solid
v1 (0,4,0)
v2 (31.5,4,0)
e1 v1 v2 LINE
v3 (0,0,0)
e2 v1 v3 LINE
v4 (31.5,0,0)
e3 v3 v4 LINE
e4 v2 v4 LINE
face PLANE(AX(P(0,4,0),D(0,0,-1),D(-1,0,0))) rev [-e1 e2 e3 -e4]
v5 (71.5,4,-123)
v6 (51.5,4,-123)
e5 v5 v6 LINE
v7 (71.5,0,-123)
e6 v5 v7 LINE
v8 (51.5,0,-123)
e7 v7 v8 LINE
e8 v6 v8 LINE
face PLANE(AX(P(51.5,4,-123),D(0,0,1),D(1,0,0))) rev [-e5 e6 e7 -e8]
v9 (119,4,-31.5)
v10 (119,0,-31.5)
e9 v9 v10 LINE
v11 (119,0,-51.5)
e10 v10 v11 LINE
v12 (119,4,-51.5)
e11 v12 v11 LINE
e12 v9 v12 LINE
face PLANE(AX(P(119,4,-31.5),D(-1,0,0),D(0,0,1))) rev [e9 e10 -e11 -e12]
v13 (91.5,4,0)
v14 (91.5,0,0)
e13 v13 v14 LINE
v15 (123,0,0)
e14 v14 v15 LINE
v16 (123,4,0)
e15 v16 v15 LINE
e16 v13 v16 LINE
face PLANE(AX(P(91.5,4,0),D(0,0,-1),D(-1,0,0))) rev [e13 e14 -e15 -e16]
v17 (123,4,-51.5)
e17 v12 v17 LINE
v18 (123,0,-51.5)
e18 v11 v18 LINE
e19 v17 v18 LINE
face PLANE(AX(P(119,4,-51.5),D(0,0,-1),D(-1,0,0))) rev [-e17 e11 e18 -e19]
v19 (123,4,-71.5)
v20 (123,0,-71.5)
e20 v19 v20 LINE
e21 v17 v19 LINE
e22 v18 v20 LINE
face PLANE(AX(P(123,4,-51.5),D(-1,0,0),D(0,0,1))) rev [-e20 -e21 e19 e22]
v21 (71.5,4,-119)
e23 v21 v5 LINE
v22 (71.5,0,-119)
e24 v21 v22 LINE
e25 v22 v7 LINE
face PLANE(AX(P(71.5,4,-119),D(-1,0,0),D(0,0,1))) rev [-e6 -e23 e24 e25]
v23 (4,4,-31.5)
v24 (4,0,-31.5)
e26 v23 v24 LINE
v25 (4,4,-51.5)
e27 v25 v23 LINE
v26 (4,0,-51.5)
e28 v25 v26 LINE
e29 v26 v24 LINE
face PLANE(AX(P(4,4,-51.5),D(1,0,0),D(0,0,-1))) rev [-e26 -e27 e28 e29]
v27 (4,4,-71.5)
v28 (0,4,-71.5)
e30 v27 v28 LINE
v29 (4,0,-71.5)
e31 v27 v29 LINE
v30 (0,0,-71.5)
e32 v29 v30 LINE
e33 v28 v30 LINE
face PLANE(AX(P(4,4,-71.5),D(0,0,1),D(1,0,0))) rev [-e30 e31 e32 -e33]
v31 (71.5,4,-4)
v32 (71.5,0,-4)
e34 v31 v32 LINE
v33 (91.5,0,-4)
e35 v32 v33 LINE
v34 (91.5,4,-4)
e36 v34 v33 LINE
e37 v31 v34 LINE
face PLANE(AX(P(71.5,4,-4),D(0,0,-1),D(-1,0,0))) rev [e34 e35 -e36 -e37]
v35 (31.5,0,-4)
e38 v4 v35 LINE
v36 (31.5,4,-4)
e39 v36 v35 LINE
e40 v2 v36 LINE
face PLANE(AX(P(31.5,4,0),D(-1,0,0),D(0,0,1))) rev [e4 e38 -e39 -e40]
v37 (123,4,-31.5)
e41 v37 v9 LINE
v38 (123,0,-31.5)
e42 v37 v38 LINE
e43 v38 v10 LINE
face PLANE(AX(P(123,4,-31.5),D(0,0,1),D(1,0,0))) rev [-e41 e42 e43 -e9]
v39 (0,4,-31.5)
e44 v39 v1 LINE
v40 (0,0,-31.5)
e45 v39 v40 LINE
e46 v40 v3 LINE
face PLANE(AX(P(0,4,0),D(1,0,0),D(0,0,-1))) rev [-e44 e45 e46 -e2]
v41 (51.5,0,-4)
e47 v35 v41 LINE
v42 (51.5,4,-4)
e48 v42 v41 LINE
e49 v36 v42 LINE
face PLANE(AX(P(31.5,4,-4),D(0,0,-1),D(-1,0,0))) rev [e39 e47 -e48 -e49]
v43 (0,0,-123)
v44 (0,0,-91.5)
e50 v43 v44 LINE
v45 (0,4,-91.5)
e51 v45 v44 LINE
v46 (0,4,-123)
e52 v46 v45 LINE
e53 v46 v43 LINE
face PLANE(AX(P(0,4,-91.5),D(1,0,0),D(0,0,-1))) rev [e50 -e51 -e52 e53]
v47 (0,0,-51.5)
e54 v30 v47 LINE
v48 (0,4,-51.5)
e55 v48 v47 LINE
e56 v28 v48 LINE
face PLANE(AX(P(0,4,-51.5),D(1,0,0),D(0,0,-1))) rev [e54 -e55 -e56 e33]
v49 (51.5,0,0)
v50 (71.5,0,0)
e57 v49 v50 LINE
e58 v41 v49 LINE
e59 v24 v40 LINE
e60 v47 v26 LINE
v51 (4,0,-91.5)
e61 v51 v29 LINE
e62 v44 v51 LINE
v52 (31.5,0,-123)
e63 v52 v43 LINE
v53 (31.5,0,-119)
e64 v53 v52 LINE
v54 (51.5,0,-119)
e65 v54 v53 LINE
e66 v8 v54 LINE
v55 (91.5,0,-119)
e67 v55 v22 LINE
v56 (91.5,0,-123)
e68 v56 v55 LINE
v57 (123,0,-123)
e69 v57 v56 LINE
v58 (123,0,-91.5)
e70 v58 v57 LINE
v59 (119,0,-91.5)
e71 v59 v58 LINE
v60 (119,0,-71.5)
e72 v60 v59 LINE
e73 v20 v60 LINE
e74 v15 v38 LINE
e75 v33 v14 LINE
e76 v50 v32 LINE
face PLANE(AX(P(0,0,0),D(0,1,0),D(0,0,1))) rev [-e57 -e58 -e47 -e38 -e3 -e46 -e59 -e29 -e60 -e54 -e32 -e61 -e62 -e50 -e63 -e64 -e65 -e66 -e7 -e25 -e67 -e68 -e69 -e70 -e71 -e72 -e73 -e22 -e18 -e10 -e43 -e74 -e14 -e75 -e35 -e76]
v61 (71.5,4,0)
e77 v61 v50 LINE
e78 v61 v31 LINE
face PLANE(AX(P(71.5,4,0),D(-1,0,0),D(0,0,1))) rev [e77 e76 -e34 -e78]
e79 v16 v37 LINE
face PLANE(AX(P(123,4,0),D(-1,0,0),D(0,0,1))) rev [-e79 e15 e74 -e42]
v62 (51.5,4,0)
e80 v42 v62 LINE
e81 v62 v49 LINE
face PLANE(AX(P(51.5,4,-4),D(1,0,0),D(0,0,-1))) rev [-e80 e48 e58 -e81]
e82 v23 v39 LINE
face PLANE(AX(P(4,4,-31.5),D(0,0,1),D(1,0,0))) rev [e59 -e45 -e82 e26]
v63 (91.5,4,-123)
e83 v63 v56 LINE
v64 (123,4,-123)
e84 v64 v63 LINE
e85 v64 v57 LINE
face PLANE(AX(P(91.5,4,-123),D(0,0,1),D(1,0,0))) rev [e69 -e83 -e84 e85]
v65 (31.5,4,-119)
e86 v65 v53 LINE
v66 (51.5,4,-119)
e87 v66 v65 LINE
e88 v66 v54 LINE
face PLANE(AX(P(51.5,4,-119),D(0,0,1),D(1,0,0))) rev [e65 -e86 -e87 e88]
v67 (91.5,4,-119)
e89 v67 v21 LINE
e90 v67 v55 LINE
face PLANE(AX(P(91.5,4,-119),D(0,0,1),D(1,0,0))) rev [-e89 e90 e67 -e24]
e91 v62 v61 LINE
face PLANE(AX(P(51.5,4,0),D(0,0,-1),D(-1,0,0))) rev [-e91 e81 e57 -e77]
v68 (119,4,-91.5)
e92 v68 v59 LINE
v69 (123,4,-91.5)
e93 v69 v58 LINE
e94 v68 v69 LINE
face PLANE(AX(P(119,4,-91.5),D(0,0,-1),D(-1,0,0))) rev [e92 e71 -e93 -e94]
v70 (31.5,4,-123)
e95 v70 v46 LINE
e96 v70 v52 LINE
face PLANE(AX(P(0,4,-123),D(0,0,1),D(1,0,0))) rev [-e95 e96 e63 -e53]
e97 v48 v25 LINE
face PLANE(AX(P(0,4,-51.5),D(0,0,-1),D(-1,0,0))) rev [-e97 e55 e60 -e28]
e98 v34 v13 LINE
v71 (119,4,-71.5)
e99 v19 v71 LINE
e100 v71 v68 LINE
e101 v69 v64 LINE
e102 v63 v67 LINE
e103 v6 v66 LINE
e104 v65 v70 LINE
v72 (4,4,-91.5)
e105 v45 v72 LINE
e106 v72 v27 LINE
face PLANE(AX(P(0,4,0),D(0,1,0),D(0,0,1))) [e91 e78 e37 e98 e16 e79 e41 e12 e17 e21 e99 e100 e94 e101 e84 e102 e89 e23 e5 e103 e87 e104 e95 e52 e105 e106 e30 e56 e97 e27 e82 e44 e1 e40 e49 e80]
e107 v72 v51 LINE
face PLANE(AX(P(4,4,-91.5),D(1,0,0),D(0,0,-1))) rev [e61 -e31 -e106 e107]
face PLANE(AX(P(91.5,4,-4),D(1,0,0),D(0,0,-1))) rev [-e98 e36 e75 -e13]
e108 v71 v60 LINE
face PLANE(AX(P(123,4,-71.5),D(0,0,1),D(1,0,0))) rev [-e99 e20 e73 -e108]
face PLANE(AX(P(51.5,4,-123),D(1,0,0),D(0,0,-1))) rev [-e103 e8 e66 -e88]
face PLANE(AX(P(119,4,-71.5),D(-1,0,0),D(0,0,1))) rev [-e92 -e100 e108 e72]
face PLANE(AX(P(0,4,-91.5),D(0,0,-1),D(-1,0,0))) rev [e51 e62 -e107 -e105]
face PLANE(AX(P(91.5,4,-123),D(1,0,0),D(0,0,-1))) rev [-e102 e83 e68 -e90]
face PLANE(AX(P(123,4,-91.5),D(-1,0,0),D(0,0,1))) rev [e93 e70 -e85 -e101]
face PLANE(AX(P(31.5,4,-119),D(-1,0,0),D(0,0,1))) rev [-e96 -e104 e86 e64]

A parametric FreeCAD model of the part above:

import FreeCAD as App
import Part
import Sketcher

V = App.Vector
Q = App.Units.Quantity

doc = App.newDocument("Part")
body = doc.addObject("PartDesign::Body", "Body")

# Sketch on XZ plane
sketch1 = doc.addObject("Sketcher::SketchObject", "Sketch")
body.addObject(sketch1)
sketch1.AttachmentSupport = (doc.XZ_Plane, [""])
sketch1.MapMode = "FlatFace"
sketch1.addGeometry([
    Part.LineSegment(V(31.5, 0, 0), V(31.5, -4, 0)),  # 0
    Part.LineSegment(V(31.5, -4, 0), V(51.5, -4, 0)),  # 1
    Part.LineSegment(V(51.5, -4, 0), V(51.5, 0, 0)),  # 2
    Part.LineSegment(V(51.5, 0, 0), V(71.5, 0, 0)),  # 3
    Part.LineSegment(V(71.5, 0, 0), V(71.5, -4, 0)),  # 4
    Part.LineSegment(V(71.5, -4, 0), V(91.5, -4, 0)),  # 5
    Part.LineSegment(V(91.5, -4, 0), V(91.5, 0, 0)),  # 6
    Part.LineSegment(V(91.5, 0, 0), V(123, 0, 0)),  # 7
    Part.LineSegment(V(123, 0, 0), V(123, -31.5, 0)),  # 8
    Part.LineSegment(V(123, -31.5, 0), V(119, -31.5, 0)),  # 9
    Part.LineSegment(V(119, -31.5, 0), V(119, -51.5, 0)),  # 10
    Part.LineSegment(V(119, -51.5, 0), V(123, -51.5, 0)),  # 11
    Part.LineSegment(V(123, -51.5, 0), V(123, -71.5, 0)),  # 12
    Part.LineSegment(V(123, -71.5, 0), V(119, -71.5, 0)),  # 13
    Part.LineSegment(V(119, -71.5, 0), V(119, -91.5, 0)),  # 14
    Part.LineSegment(V(119, -91.5, 0), V(123, -91.5, 0)),  # 15
    Part.LineSegment(V(123, -91.5, 0), V(123, -123, 0)),  # 16
    Part.LineSegment(V(123, -123, 0), V(91.5, -123, 0)),  # 17
    Part.LineSegment(V(91.5, -123, 0), V(91.5, -119, 0)),  # 18
    Part.LineSegment(V(91.5, -119, 0), V(71.5, -119, 0)),  # 19
    Part.LineSegment(V(71.5, -119, 0), V(71.5, -123, 0)),  # 20
    Part.LineSegment(V(71.5, -123, 0), V(51.5, -123, 0)),  # 21
    Part.LineSegment(V(51.5, -123, 0), V(51.5, -119, 0)),  # 22
    Part.LineSegment(V(51.5, -119, 0), V(31.5, -119, 0)),  # 23
    Part.LineSegment(V(31.5, -119, 0), V(31.5, -123, 0)),  # 24
    Part.LineSegment(V(31.5, -123, 0), V(0, -123, 0)),  # 25
    Part.LineSegment(V(0, -123, 0), V(0, -91.5, 0)),  # 26
    Part.LineSegment(V(0, -91.5, 0), V(4, -91.5, 0)),  # 27
    Part.LineSegment(V(4, -91.5, 0), V(4, -71.5, 0)),  # 28
    Part.LineSegment(V(4, -71.5, 0), V(0, -71.5, 0)),  # 29
    Part.LineSegment(V(0, -71.5, 0), V(0, -51.5, 0)),  # 30
    Part.LineSegment(V(0, -51.5, 0), V(4, -51.5, 0)),  # 31
    Part.LineSegment(V(4, -51.5, 0), V(4, -31.5, 0)),  # 32
    Part.LineSegment(V(4, -31.5, 0), V(0, -31.5, 0)),  # 33
    Part.LineSegment(V(0, -31.5, 0), V(0, 0, 0)),  # 34
    Part.LineSegment(V(0, 0, 0), V(31.5, 0, 0)),  # 35
], False)
sketch1.addConstraint([
    Sketcher.Constraint("Coincident", 0, 2, 1, 1),
    Sketcher.Constraint("Coincident", 1, 2, 2, 1),
    Sketcher.Constraint("Coincident", 2, 2, 3, 1),
    Sketcher.Constraint("Coincident", 3, 2, 4, 1),
    Sketcher.Constraint("Coincident", 4, 2, 5, 1),
    Sketcher.Constraint("Coincident", 5, 2, 6, 1),
    Sketcher.Constraint("Coincident", 6, 2, 7, 1),
    Sketcher.Constraint("Coincident", 7, 2, 8, 1),
    Sketcher.Constraint("Coincident", 8, 2, 9, 1),
    Sketcher.Constraint("Coincident", 9, 2, 10, 1),
    Sketcher.Constraint("Coincident", 10, 2, 11, 1),
    Sketcher.Constraint("Coincident", 11, 2, 12, 1),
    Sketcher.Constraint("Coincident", 12, 2, 13, 1),
    Sketcher.Constraint("Coincident", 13, 2, 14, 1),
    Sketcher.Constraint("Coincident", 14, 2, 15, 1),
    Sketcher.Constraint("Coincident", 15, 2, 16, 1),
    Sketcher.Constraint("Coincident", 16, 2, 17, 1),
    Sketcher.Constraint("Coincident", 17, 2, 18, 1),
    Sketcher.Constraint("Coincident", 18, 2, 19, 1),
    Sketcher.Constraint("Coincident", 19, 2, 20, 1),
    Sketcher.Constraint("Coincident", 20, 2, 21, 1),
    Sketcher.Constraint("Coincident", 21, 2, 22, 1),
    Sketcher.Constraint("Coincident", 22, 2, 23, 1),
    Sketcher.Constraint("Coincident", 23, 2, 24, 1),
    Sketcher.Constraint("Coincident", 24, 2, 25, 1),
    Sketcher.Constraint("Coincident", 25, 2, 26, 1),
    Sketcher.Constraint("Coincident", 26, 2, 27, 1),
    Sketcher.Constraint("Coincident", 27, 2, 28, 1),
    Sketcher.Constraint("Coincident", 28, 2, 29, 1),
    Sketcher.Constraint("Coincident", 29, 2, 30, 1),
    Sketcher.Constraint("Coincident", 30, 2, 31, 1),
    Sketcher.Constraint("Coincident", 31, 2, 32, 1),
    Sketcher.Constraint("Coincident", 32, 2, 33, 1),
    Sketcher.Constraint("Coincident", 33, 2, 34, 1),
    Sketcher.Constraint("Coincident", 34, 2, 35, 1),
    Sketcher.Constraint("Coincident", 35, 2, 0, 1),
    Sketcher.Constraint("Vertical", 0),
    Sketcher.Constraint("Horizontal", 1),
    Sketcher.Constraint("Vertical", 2),
    Sketcher.Constraint("Horizontal", 3),
    Sketcher.Constraint("Vertical", 4),
    Sketcher.Constraint("Horizontal", 5),
    Sketcher.Constraint("Vertical", 6),
    Sketcher.Constraint("Horizontal", 7),
    Sketcher.Constraint("Vertical", 8),
    Sketcher.Constraint("Horizontal", 9),
    Sketcher.Constraint("Vertical", 10),
    Sketcher.Constraint("Horizontal", 11),
    Sketcher.Constraint("Vertical", 12),
    Sketcher.Constraint("Horizontal", 13),
    Sketcher.Constraint("Vertical", 14),
    Sketcher.Constraint("Horizontal", 15),
    Sketcher.Constraint("Vertical", 16),
    Sketcher.Constraint("Horizontal", 17),
    Sketcher.Constraint("Vertical", 18),
    Sketcher.Constraint("Horizontal", 19),
    Sketcher.Constraint("Vertical", 20),
    Sketcher.Constraint("Horizontal", 21),
    Sketcher.Constraint("Vertical", 22),
    Sketcher.Constraint("Horizontal", 23),
    Sketcher.Constraint("Vertical", 24),
    Sketcher.Constraint("Horizontal", 25),
    Sketcher.Constraint("Vertical", 26),
    Sketcher.Constraint("Horizontal", 27),
    Sketcher.Constraint("Vertical", 28),
    Sketcher.Constraint("Horizontal", 29),
    Sketcher.Constraint("Vertical", 30),
    Sketcher.Constraint("Horizontal", 31),
    Sketcher.Constraint("Vertical", 32),
    Sketcher.Constraint("Horizontal", 33),
    Sketcher.Constraint("Vertical", 34),
    Sketcher.Constraint("Horizontal", 35),
    Sketcher.Constraint("Coincident", 34, 2, -1, 1),
    Sketcher.Constraint("PointOnObject", 2, 2, -1),
    Sketcher.Constraint("PointOnObject", 6, 2, -1),
    Sketcher.Constraint("PointOnObject", 25, 2, -2),
    Sketcher.Constraint("PointOnObject", 29, 2, -2),
    Sketcher.Constraint("Horizontal", 1, 2, 4, 2),
    Sketcher.Constraint("Horizontal", 17, 2, 20, 2),
    Sketcher.Constraint("Horizontal", 19, 2, 22, 2),
    Sketcher.Constraint("Horizontal", 21, 2, 24, 2),
    Sketcher.Constraint("Horizontal", 15, 2, 26, 2),
    Sketcher.Constraint("Horizontal", 13, 2, 28, 2),
    Sketcher.Constraint("Horizontal", 11, 2, 30, 2),
    Sketcher.Constraint("Horizontal", 9, 2, 32, 2),
    Sketcher.Constraint("Vertical", 8, 2, 11, 2),
    Sketcher.Constraint("Vertical", 10, 2, 13, 2),
    Sketcher.Constraint("Vertical", 12, 2, 15, 2),
    Sketcher.Constraint("Vertical", 6, 2, 17, 2),
    Sketcher.Constraint("Vertical", 4, 2, 19, 2),
    Sketcher.Constraint("Vertical", 2, 2, 21, 2),
    Sketcher.Constraint("Vertical", 0, 2, 23, 2),
    Sketcher.Constraint("Vertical", 28, 2, 31, 2),
    Sketcher.Constraint("Equal", 1, 3),
    Sketcher.Constraint("Equal", 3, 5),
    Sketcher.Constraint("Equal", 17, 25),
    Sketcher.Constraint("Equal", 15, 27),
    Sketcher.Constraint("Equal", 33, 0),
    Sketcher.Constraint("Equal", 35, 8),
    Sketcher.Constraint("Equal", 23, 10),
    Sketcher.Constraint("Equal", 10, 12),
    Sketcher.Constraint("Equal", 12, 14),
    Sketcher.Constraint("Equal", 8, 16),
    Sketcher.Constraint("Equal", 6, 18),
    Sketcher.Constraint("DistanceX", 1, 1, 1, 2, Q("20 mm")),
    Sketcher.Constraint("DistanceX", 9, 2, 9, 1, Q("4 mm")),
    Sketcher.Constraint("DistanceX", 7, 1, 7, 2, Q("31.5 mm")),
])
pad1 = doc.addObject("PartDesign::Pad", "Pad")
body.addObject(pad1)
pad1.Profile = sketch1
pad1.Length = 4
pad1.Reversed = True

doc.recompute()
